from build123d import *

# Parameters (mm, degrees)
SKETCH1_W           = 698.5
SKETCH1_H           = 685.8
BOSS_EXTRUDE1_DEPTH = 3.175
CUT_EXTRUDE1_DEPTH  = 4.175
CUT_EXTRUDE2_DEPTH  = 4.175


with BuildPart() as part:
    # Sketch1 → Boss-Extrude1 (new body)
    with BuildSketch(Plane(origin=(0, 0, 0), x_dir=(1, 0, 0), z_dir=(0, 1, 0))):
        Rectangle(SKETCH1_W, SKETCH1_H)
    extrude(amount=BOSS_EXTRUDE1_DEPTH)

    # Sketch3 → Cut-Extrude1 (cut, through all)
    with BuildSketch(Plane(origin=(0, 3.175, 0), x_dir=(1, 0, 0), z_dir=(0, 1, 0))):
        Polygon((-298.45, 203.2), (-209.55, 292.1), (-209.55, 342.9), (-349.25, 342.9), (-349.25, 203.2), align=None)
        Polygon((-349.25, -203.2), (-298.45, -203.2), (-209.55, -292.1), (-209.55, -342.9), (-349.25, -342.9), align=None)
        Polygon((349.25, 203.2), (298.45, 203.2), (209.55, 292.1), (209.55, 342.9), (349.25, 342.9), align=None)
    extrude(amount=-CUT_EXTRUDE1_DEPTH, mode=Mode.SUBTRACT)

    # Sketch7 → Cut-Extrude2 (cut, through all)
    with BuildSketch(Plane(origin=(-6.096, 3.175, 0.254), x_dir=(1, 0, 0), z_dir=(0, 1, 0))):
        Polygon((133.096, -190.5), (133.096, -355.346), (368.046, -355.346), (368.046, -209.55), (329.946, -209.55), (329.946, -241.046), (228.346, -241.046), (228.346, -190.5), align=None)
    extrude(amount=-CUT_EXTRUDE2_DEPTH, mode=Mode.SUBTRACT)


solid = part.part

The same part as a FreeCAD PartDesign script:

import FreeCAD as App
import Part
import Sketcher
Q = App.Units.Quantity


def add_polygon(sketch, points):
    """Adds a closed chain of lines whose ends are joined by coincident constraints."""
    first, n = sketch.GeometryCount, len(points)
    for a, b in zip(points, points[1:] + points[:1]):
        sketch.addGeometry(Part.LineSegment(App.Vector(*a, 0), App.Vector(*b, 0)), False)
    for i in range(n):
        sketch.addConstraint(Sketcher.Constraint("Coincident", first + i, 2, first + (i + 1) % n, 1))

doc = App.newDocument("Part")
body = doc.addObject("PartDesign::Body", "Body")

# Sketch on XZ plane
sketch1 = body.newObject("Sketcher::SketchObject", "Sketch")
sketch1.AttachmentSupport = (doc.getObject("XZ_Plane"), [""])
sketch1.MapMode = "FlatFace"
add_polygon(sketch1, [(-349, -343), (-349, 343), (349, 343), (349, -343)])  # lines 0-3
sketch1.addConstraint(Sketcher.Constraint("Vertical", 0))
sketch1.addConstraint(Sketcher.Constraint("Horizontal", 1))
sketch1.addConstraint(Sketcher.Constraint("Vertical", 2))
sketch1.addConstraint(Sketcher.Constraint("Horizontal", 3))
sketch1.addConstraint(Sketcher.Constraint("Symmetric", 0, 2, 2, 2, -1, 1))
sketch1.addConstraint(Sketcher.Constraint("DistanceY", 0, 1, 0, 2, Q("27 in")))
sketch1.addConstraint(Sketcher.Constraint("DistanceX", 1, 1, 1, 2, Q("27.5 in")))
pad1 = body.newObject("PartDesign::Pad", "Pad")
pad1.Profile = sketch1
pad1.Length = Q("0.125 in")
pad1.Reversed = True

# Sketch on XZ plane
sketch2 = body.newObject("Sketcher::SketchObject", "Sketch001")
sketch2.AttachmentSupport = (doc.getObject("XZ_Plane"), [""])
sketch2.MapMode = "FlatFace"
sketch2.AttachmentOffset = App.Placement(App.Vector(0, 0, -0.125 * 25.4), App.Rotation())
add_polygon(sketch2, [(-298, -203), (-210, -292), (-210, -343), (-349, -343), (-349, -203)])  # lines 0-4
add_polygon(sketch2, [(-298, 203), (-349, 203), (-349, 343), (-210, 343), (-210, 292)])  # lines 5-9
add_polygon(sketch2, [(298, -203), (349, -203), (349, -343), (210, -343), (210, -292)])  # lines 10-14
sketch2.addConstraint(Sketcher.Constraint("Vertical", 1))
sketch2.addConstraint(Sketcher.Constraint("Horizontal", 2))
sketch2.addConstraint(Sketcher.Constraint("Vertical", 3))
sketch2.addConstraint(Sketcher.Constraint("Horizontal", 4))
sketch2.addConstraint(Sketcher.Constraint("Horizontal", 5))
sketch2.addConstraint(Sketcher.Constraint("Vertical", 6))
sketch2.addConstraint(Sketcher.Constraint("Horizontal", 7))
sketch2.addConstraint(Sketcher.Constraint("Vertical", 8))
sketch2.addConstraint(Sketcher.Constraint("Horizontal", 10))
sketch2.addConstraint(Sketcher.Constraint("Vertical", 11))
sketch2.addConstraint(Sketcher.Constraint("Horizontal", 12))
sketch2.addConstraint(Sketcher.Constraint("Vertical", 13))
sketch2.addConstraint(Sketcher.Constraint("Symmetric", 5, 2, 10, 2, -1, 1))
sketch2.addConstraint(Sketcher.Constraint("Symmetric", 7, 2, 12, 2, -1, 1))
sketch2.addConstraint(Sketcher.Constraint("Symmetric", 3, 2, 10, 2, -2))
sketch2.addConstraint(Sketcher.Constraint("Symmetric", 1, 2, 12, 2, -2))
sketch2.addConstraint(Sketcher.Constraint("Perpendicular", 0, 9))
sketch2.addConstraint(Sketcher.Constraint("Parallel", 9, 14))
sketch2.addConstraint(Sketcher.Constraint("Horizontal", 0, 2, 13, 2))
sketch2.addConstraint(Sketcher.Constraint("Vertical", 4, 2, 9, 2))
sketch2.addConstraint(Sketcher.Constraint("Equal", 5, 10))
sketch2.addConstraint(Sketcher.Constraint("Equal", 10, 1))
sketch2.addConstraint(Sketcher.Constraint("DistanceX", 4, 1, 4, 2, Q("2 in")))
sketch2.addConstraint(Sketcher.Constraint("DistanceX", 2, 2, 2, 1, Q("5.5 in")))
sketch2.addConstraint(Sketcher.Constraint("DistanceY", 3, 2, -1, 1, Q("8 in")))
sketch2.addConstraint(Sketcher.Constraint("DistanceX", 0, 2, 10, 2, Q("22 in")))
pocket1 = body.newObject("PartDesign::Pocket", "Pocket")
pocket1.Profile = sketch2
pocket1.Type = "ThroughAll"
pocket1.Reversed = True

# Sketch on XZ plane
sketch3 = body.newObject("Sketcher::SketchObject", "Sketch002")
sketch3.AttachmentSupport = (doc.getObject("XZ_Plane"), [""])
sketch3.MapMode = "FlatFace"
sketch3.AttachmentOffset = App.Placement(App.Vector(0, 0, -0.125 * 25.4), App.Rotation())
add_polygon(sketch3, [(127, 191), (127, 356), (362, 356), (362, 210), (324, 210), (324, 241), (222, 241), (222, 191)])  # lines 0-7
sketch3.addConstraint(Sketcher.Constraint("Vertical", 0))
sketch3.addConstraint(Sketcher.Constraint("Horizontal", 1))
sketch3.addConstraint(Sketcher.Constraint("Vertical", 2))
sketch3.addConstraint(Sketcher.Constraint("Horizontal", 3))
sketch3.addConstraint(Sketcher.Constraint("Vertical", 4))
sketch3.addConstraint(Sketcher.Constraint("Horizontal", 5))
sketch3.addConstraint(Sketcher.Constraint("Vertical", 6))
sketch3.addConstraint(Sketcher.Constraint("Horizontal", 7))
sketch3.addConstraint(Sketcher.Constraint("DistanceX", 5, 2, 5, 1, Q("4 in")))
sketch3.addConstraint(Sketcher.Constraint("DistanceX", 3, 2, 3, 1, Q("1.5 in")))
sketch3.addConstraint(Sketcher.Constraint("DistanceX", -1, 1, 0, 2, Q("5 in")))
sketch3.addConstraint(Sketcher.Constraint("DistanceY", -1, 1, 0, 2, Q("14 in")))
sketch3.addConstraint(Sketcher.Constraint("DistanceX", 1, 1, 1, 2, Q("9.25 in")))
sketch3.addConstraint(Sketcher.Constraint("DistanceY", 0, 1, 0, 2, Q("6.49 in")))
sketch3.addConstraint(Sketcher.Constraint("DistanceY", 2, 2, 2, 1, Q("5.74 in")))
sketch3.addConstraint(Sketcher.Constraint("DistanceY", 4, 1, 4, 2, Q("1.24 in")))
pocket2 = body.newObject("PartDesign::Pocket", "Pocket001")
pocket2.Profile = sketch3
pocket2.Type = "ThroughAll"
pocket2.Reversed = True

doc.recompute()
